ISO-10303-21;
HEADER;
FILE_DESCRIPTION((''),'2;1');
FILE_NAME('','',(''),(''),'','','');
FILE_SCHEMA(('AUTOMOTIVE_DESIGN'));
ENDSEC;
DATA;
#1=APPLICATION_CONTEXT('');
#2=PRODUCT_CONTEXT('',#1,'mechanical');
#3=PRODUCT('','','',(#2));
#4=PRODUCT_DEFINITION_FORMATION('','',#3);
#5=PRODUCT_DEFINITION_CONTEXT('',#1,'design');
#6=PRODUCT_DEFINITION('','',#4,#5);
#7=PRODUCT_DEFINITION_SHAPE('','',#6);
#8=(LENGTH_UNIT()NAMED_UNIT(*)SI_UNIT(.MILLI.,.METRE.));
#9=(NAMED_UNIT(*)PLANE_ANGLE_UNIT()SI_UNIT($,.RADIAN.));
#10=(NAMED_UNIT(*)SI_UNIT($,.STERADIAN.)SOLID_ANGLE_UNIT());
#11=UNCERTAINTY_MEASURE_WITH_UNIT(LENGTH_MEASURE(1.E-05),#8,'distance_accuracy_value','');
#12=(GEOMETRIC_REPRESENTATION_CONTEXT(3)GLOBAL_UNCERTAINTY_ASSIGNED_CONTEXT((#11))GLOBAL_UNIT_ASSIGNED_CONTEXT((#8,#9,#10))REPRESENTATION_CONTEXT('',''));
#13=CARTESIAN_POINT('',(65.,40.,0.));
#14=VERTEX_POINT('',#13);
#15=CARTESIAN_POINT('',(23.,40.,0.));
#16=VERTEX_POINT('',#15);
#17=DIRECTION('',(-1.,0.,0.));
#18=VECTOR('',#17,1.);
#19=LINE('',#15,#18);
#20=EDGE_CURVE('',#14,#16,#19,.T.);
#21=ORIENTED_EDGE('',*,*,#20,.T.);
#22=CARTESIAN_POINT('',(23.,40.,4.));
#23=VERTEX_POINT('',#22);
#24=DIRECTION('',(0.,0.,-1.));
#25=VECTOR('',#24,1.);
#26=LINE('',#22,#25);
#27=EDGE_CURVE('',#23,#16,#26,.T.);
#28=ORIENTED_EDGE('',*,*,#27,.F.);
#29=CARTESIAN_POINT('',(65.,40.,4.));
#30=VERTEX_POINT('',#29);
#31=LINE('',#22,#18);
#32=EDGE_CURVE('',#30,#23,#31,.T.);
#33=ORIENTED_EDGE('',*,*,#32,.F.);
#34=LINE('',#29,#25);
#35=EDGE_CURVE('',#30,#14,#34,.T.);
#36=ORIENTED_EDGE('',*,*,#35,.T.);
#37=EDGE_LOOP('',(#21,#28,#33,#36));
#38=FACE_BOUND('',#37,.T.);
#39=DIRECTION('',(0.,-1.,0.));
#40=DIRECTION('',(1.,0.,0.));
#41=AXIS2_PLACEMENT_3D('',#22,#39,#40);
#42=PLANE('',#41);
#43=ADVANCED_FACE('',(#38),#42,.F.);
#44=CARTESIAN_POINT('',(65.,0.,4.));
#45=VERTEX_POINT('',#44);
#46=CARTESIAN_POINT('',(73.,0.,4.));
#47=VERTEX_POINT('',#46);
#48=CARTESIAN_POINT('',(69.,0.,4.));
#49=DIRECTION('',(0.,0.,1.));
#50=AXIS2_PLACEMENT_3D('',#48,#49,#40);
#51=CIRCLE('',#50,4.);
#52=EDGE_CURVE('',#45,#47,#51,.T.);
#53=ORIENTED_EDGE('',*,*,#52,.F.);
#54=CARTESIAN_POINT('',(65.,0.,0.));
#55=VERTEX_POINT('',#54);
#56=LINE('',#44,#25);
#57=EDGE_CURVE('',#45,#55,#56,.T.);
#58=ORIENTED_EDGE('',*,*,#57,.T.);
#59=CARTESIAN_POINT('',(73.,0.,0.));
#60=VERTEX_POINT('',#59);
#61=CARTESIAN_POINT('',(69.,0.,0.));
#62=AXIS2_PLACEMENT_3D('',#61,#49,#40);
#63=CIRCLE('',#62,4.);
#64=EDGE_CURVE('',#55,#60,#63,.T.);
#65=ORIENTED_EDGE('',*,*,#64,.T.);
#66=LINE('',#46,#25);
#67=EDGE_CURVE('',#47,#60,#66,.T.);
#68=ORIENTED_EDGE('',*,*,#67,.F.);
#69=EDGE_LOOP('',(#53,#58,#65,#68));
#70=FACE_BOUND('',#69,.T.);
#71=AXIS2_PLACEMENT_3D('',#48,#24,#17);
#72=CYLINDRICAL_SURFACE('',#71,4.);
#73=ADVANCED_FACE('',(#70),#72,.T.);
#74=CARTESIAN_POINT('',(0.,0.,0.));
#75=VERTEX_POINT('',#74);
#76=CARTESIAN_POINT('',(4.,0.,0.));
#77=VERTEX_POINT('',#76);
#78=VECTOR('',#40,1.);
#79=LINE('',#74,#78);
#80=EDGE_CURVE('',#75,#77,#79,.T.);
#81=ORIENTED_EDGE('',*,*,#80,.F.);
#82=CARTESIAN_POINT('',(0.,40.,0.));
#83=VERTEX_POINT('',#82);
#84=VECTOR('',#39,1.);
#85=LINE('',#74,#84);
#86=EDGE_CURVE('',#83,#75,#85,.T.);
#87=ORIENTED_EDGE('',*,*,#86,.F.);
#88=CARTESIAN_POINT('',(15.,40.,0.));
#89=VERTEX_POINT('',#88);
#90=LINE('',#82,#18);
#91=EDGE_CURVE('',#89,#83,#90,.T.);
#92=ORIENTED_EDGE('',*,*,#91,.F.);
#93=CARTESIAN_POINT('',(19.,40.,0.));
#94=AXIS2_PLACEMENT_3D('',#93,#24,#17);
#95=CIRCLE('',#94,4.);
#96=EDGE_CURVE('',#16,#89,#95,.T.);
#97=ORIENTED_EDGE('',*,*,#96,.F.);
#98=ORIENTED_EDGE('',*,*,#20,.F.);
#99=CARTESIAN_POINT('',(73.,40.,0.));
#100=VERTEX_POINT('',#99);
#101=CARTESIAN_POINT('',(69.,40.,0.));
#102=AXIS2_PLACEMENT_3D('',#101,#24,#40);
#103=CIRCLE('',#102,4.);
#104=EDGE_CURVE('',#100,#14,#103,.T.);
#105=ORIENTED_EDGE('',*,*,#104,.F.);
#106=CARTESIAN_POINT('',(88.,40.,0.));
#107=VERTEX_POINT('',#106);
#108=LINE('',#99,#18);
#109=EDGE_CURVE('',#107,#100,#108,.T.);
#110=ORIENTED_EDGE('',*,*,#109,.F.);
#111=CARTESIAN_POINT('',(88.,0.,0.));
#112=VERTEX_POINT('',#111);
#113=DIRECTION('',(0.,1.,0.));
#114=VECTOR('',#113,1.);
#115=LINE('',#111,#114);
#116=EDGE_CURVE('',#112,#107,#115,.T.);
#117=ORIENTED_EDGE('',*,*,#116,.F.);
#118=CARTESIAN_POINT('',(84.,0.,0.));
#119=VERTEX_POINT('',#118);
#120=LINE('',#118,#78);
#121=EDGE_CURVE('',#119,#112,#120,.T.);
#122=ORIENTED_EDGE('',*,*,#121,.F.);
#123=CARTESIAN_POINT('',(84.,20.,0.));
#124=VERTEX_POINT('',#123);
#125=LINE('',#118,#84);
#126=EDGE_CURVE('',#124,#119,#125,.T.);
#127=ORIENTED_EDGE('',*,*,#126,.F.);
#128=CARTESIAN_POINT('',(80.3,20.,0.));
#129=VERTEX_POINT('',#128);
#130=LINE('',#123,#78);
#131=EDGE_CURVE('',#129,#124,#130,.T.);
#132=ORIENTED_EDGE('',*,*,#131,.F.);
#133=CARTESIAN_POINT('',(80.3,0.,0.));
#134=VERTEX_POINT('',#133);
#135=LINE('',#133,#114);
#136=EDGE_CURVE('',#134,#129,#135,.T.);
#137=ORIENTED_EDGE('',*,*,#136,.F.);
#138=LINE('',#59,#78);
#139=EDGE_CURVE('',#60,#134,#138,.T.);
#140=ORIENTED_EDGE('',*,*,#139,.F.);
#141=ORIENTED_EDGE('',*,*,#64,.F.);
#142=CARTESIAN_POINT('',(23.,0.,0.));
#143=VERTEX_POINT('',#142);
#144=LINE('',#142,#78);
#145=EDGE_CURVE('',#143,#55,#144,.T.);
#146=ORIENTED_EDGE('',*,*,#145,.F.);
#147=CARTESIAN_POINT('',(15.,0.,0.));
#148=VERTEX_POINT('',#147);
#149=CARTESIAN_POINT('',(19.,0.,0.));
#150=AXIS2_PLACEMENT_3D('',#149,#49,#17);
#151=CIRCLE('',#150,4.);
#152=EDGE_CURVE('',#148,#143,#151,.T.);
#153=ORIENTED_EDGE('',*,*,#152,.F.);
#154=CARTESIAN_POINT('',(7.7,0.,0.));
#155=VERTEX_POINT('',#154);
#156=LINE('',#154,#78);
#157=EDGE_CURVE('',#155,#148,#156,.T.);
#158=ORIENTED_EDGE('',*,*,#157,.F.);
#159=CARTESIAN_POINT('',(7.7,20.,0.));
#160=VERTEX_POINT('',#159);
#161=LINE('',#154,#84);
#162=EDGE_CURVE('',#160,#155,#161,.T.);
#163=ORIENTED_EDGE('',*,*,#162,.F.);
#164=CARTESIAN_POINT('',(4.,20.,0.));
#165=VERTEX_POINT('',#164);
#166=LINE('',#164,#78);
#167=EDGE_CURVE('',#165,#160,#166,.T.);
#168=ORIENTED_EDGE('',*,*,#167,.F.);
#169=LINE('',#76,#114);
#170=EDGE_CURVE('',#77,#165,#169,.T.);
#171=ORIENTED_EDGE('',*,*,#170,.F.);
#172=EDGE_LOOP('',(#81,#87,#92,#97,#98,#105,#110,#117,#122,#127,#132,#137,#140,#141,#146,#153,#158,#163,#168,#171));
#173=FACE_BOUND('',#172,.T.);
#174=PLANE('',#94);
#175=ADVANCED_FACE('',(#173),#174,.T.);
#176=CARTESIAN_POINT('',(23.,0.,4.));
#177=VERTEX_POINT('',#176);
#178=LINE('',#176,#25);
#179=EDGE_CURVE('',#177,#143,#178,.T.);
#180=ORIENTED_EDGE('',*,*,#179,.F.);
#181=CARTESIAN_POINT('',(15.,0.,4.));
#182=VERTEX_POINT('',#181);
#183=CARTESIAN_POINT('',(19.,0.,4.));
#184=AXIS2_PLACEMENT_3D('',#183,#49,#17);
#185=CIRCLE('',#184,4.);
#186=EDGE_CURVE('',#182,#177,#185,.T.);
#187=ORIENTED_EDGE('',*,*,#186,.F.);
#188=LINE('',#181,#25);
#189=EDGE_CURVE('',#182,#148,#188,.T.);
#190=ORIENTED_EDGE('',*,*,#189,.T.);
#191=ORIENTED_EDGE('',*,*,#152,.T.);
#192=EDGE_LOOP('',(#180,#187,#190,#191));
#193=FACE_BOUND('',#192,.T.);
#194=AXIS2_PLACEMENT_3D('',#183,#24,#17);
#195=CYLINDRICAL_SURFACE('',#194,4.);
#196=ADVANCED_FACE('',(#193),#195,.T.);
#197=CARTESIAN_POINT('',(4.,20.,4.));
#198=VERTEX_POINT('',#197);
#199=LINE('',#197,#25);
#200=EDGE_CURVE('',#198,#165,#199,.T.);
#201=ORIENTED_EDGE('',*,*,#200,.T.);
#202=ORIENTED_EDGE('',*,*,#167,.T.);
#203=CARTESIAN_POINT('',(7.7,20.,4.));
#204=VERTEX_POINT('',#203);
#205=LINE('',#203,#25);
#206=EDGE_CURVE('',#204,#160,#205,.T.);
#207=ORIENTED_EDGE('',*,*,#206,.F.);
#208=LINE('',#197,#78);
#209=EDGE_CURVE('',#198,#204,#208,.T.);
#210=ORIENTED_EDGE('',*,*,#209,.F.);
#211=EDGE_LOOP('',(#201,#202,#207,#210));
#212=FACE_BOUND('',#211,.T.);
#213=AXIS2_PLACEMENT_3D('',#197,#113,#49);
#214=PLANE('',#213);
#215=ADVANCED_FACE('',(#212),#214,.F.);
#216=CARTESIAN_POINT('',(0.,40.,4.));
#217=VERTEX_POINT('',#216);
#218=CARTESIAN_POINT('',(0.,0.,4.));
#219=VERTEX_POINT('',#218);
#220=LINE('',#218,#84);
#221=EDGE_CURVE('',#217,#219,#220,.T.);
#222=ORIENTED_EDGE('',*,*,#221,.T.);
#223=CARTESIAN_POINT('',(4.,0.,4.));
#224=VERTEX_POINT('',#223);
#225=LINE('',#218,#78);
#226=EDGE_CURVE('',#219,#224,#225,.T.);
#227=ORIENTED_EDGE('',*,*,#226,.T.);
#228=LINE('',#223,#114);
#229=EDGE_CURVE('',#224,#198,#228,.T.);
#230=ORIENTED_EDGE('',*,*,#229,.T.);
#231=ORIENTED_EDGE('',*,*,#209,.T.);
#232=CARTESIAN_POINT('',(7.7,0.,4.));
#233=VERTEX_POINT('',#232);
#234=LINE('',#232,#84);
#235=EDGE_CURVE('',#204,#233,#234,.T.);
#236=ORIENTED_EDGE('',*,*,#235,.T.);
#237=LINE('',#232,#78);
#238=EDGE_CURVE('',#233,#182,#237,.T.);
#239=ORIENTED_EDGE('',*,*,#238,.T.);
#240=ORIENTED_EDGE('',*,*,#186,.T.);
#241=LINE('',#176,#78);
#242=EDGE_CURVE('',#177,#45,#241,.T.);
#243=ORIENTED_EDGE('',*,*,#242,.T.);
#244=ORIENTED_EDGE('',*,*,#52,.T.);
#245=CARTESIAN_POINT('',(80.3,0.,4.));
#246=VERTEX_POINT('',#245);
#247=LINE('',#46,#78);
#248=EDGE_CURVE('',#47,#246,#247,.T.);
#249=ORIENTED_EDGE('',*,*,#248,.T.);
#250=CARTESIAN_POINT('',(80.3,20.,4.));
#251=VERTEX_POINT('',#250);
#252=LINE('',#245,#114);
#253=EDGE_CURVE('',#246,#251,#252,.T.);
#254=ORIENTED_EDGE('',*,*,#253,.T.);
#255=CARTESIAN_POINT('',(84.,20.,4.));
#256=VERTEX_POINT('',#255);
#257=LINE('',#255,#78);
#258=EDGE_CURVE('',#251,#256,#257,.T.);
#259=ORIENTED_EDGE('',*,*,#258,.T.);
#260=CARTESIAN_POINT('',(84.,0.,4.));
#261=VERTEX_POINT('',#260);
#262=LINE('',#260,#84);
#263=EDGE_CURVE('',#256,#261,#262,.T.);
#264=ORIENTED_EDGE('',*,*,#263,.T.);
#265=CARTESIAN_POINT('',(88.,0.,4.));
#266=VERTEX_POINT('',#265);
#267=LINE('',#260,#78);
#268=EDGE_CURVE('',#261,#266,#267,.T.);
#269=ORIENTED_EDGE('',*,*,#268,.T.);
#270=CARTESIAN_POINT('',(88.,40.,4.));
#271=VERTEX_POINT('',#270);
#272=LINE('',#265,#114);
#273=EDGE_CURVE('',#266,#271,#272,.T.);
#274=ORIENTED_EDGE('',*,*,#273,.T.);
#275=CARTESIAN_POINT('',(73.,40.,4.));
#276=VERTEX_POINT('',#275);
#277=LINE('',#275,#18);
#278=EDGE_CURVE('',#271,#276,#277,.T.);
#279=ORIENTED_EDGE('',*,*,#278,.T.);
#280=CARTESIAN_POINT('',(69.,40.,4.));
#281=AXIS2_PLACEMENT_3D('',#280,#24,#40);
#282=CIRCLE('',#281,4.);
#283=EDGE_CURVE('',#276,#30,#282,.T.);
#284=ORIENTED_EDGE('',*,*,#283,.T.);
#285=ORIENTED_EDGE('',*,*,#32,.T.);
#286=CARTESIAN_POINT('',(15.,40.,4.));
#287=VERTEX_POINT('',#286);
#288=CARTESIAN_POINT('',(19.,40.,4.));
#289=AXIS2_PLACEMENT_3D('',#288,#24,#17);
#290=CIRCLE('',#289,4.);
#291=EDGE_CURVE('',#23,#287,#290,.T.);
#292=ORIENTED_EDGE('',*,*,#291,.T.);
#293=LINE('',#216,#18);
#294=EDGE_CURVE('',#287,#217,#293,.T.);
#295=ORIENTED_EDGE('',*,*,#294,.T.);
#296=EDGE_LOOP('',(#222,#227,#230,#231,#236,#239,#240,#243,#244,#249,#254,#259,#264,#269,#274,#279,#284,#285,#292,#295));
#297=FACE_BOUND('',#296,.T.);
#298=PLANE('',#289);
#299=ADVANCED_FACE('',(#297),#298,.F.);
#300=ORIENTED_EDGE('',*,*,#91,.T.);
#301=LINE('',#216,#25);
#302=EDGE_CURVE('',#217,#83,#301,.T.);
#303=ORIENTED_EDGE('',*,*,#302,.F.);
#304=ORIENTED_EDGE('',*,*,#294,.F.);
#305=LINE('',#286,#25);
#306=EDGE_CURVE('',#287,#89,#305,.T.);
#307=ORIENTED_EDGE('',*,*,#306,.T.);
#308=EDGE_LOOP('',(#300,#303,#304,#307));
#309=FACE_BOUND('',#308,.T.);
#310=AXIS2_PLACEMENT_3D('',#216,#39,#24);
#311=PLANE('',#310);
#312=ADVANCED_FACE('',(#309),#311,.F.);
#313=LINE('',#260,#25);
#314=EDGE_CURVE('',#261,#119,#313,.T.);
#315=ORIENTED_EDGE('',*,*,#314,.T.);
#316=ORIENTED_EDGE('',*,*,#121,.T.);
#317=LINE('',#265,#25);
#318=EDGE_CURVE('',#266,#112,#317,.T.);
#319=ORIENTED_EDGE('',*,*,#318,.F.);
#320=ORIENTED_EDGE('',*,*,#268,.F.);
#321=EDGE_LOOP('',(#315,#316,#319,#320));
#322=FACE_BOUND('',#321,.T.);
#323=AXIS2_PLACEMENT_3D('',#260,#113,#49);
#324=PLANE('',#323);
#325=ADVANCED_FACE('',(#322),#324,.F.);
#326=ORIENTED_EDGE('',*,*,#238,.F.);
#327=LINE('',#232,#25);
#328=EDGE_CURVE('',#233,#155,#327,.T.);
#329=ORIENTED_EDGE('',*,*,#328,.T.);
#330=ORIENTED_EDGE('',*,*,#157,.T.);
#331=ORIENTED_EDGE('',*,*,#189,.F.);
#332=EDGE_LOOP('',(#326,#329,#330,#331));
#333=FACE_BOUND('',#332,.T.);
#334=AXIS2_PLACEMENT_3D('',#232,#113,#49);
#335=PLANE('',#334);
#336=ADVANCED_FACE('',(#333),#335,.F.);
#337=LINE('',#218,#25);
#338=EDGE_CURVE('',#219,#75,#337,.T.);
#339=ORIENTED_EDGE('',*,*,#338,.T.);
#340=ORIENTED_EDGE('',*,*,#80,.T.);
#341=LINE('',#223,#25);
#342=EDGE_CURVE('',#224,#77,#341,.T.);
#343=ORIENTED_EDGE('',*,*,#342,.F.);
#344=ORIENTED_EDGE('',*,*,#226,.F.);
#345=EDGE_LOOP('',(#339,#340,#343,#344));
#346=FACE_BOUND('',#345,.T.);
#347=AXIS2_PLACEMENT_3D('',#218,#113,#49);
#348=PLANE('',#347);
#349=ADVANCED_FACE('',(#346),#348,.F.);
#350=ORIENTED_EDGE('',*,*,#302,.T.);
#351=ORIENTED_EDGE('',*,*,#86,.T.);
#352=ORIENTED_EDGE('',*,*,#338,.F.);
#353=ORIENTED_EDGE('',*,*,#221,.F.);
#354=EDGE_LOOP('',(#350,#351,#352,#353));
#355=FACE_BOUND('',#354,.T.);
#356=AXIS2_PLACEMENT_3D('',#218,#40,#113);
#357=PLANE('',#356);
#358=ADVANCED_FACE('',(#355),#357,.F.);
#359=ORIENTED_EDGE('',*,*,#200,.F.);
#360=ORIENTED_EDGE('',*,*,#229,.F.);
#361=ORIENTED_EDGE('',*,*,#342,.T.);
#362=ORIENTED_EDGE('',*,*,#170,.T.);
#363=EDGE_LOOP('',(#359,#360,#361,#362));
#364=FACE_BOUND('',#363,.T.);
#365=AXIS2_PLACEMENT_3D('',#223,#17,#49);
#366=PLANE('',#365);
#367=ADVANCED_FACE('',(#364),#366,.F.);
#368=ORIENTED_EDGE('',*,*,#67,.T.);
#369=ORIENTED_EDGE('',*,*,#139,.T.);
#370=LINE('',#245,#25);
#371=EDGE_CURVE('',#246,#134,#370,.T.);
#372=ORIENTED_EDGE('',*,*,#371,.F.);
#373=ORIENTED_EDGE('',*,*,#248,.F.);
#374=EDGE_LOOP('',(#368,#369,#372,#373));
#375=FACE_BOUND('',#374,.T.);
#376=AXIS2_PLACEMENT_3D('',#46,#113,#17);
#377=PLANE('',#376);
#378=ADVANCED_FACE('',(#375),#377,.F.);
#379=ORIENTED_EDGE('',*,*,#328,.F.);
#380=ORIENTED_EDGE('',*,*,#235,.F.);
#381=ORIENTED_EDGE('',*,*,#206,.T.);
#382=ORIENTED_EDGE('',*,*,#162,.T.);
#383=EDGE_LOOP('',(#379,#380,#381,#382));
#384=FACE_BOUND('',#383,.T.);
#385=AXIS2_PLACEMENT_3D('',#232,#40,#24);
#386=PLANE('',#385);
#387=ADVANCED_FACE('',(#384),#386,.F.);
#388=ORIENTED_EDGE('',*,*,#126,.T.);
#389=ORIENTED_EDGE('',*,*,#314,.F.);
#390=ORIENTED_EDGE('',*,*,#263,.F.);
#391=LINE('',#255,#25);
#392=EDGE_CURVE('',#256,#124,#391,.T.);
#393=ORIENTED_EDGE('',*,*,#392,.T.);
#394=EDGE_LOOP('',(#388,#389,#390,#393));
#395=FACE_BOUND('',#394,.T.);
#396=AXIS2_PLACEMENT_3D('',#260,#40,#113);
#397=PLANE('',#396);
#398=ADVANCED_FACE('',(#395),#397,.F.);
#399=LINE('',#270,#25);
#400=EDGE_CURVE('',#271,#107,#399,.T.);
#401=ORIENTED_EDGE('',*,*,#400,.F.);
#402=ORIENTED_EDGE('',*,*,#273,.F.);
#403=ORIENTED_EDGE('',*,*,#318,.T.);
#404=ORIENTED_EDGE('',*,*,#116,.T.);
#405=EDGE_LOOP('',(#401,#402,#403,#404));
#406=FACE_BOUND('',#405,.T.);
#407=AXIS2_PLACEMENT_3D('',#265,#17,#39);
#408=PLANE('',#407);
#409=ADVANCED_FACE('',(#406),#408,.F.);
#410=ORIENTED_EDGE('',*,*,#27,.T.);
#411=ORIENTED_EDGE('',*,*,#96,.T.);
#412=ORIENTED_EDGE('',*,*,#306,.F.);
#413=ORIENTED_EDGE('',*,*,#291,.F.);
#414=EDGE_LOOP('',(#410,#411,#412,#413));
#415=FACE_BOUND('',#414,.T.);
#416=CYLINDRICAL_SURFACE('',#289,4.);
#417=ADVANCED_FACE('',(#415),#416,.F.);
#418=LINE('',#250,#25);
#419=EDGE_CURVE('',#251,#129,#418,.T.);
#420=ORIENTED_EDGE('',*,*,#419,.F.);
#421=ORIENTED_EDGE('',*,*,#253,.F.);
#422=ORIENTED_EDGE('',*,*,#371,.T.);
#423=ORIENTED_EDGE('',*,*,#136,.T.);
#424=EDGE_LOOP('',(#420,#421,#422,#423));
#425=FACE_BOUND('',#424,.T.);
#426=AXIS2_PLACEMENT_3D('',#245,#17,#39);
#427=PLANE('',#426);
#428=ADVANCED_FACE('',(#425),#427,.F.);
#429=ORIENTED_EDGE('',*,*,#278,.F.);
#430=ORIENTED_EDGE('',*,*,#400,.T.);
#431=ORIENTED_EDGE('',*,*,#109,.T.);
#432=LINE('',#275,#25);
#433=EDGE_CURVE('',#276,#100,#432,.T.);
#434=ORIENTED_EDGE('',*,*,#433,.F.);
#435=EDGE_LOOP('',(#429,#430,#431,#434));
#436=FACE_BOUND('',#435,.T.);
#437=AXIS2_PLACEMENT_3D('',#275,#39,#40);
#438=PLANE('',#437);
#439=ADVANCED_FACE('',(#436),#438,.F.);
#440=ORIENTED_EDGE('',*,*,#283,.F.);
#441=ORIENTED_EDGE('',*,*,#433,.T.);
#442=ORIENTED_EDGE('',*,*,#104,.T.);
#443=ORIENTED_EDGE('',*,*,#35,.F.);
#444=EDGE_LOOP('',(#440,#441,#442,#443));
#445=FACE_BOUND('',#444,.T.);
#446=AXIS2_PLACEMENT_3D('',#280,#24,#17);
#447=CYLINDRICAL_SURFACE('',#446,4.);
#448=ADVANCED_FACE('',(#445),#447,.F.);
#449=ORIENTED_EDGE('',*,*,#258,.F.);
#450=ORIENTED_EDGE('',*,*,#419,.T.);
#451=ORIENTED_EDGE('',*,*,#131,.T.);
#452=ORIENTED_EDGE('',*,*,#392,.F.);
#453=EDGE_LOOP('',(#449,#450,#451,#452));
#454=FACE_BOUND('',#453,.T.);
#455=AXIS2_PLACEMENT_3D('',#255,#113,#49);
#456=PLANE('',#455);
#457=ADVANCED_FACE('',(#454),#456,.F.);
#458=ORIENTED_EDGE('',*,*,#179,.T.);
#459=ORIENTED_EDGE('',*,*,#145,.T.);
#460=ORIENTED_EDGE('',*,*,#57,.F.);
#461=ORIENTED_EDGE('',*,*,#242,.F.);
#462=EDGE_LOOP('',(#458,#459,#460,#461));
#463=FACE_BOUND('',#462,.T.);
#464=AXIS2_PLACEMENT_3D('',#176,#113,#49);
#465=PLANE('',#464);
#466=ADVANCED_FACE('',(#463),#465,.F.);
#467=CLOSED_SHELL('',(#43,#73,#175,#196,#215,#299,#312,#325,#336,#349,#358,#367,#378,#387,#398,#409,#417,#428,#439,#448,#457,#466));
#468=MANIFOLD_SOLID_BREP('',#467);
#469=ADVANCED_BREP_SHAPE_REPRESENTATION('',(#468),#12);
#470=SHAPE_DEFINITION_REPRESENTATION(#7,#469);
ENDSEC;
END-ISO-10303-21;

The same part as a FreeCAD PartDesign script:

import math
import FreeCAD as App
import Part
import Sketcher

V = App.Vector

doc = App.newDocument("Part")
body = doc.addObject("PartDesign::Body", "Body")

# Sketch on XY plane
sketch1 = doc.addObject("Sketcher::SketchObject", "Sketch")
body.addObject(sketch1)
sketch1.AttachmentSupport = (doc.XY_Plane, [""])
sketch1.MapMode = "FlatFace"
sketch1.addGeometry([
    Part.LineSegment(V(7.7, 0, 0), V(15, 0, 0)),  # 0
    Part.ArcOfCircle(Part.Circle(V(19, 0, 0), V(0, 0, 1), 4), math.radians(180), math.radians(360)),  # 1
    Part.LineSegment(V(23, 0, 0), V(65, 0, 0)),  # 2
    Part.ArcOfCircle(Part.Circle(V(69, 0, 0), V(0, 0, 1), 4), math.radians(180), math.radians(360)),  # 3
    Part.LineSegment(V(73, 0, 0), V(80.3, 0, 0)),  # 4
    Part.LineSegment(V(80.3, 0, 0), V(80.3, 20, 0)),  # 5
    Part.LineSegment(V(80.3, 20, 0), V(84, 20, 0)),  # 6
    Part.LineSegment(V(84, 20, 0), V(84, 0, 0)),  # 7
    Part.LineSegment(V(84, 0, 0), V(88, 0, 0)),  # 8
    Part.LineSegment(V(88, 0, 0), V(88, 40, 0)),  # 9
    Part.LineSegment(V(88, 40, 0), V(73, 40, 0)),  # 10
    Part.ArcOfCircle(Part.Circle(V(69, 40, 0), V(0, 0, 1), 4), math.radians(180), math.radians(360)),  # 11
    Part.LineSegment(V(65, 40, 0), V(23, 40, 0)),  # 12
    Part.ArcOfCircle(Part.Circle(V(19, 40, 0), V(0, 0, 1), 4), math.radians(180), math.radians(360)),  # 13
    Part.LineSegment(V(15, 40, 0), V(0, 40, 0)),  # 14
    Part.LineSegment(V(0, 40, 0), V(0, 0, 0)),  # 15
    Part.LineSegment(V(0, 0, 0), V(4, 0, 0)),  # 16
    Part.LineSegment(V(4, 0, 0), V(4, 20, 0)),  # 17
    Part.LineSegment(V(4, 20, 0), V(7.7, 20, 0)),  # 18
    Part.LineSegment(V(7.7, 20, 0), V(7.7, 0, 0)),  # 19
], False)
sketch1.addConstraint([
    Sketcher.Constraint("Coincident", 0, 2, 1, 1),
    Sketcher.Constraint("Coincident", 1, 2, 2, 1),
    Sketcher.Constraint("Coincident", 2, 2, 3, 1),
    Sketcher.Constraint("Coincident", 3, 2, 4, 1),
    Sketcher.Constraint("Coincident", 4, 2, 5, 1),
    Sketcher.Constraint("Coincident", 5, 2, 6, 1),
    Sketcher.Constraint("Coincident", 6, 2, 7, 1),
    Sketcher.Constraint("Coincident", 7, 2, 8, 1),
    Sketcher.Constraint("Coincident", 8, 2, 9, 1),
    Sketcher.Constraint("Coincident", 9, 2, 10, 1),
    Sketcher.Constraint("Coincident", 10, 2, 11, 2),
    Sketcher.Constraint("Coincident", 11, 1, 12, 1),
    Sketcher.Constraint("Coincident", 12, 2, 13, 2),
    Sketcher.Constraint("Coincident", 13, 1, 14, 1),
    Sketcher.Constraint("Coincident", 14, 2, 15, 1),
    Sketcher.Constraint("Coincident", 15, 2, 16, 1),
    Sketcher.Constraint("Coincident", 16, 2, 17, 1),
    Sketcher.Constraint("Coincident", 17, 2, 18, 1),
    Sketcher.Constraint("Coincident", 18, 2, 19, 1),
    Sketcher.Constraint("Coincident", 19, 2, 0, 1),
    Sketcher.Constraint("Horizontal", 0),
    Sketcher.Constraint("Horizontal", 2),
    Sketcher.Constraint("Horizontal", 4),
    Sketcher.Constraint("Vertical", 5),
    Sketcher.Constraint("Horizontal", 6),
    Sketcher.Constraint("Vertical", 7),
    Sketcher.Constraint("Horizontal", 8),
    Sketcher.Constraint("Vertical", 9),
    Sketcher.Constraint("Horizontal", 10),
    Sketcher.Constraint("Horizontal", 12),
    Sketcher.Constraint("Horizontal", 14),
    Sketcher.Constraint("Vertical", 15),
    Sketcher.Constraint("Horizontal", 16),
    Sketcher.Constraint("Vertical", 17),
    Sketcher.Constraint("Horizontal", 18),
    Sketcher.Constraint("Vertical", 19),
    Sketcher.Constraint("Coincident", 15, 2, -1, 1),
    Sketcher.Constraint("Equal", 1, 3),
    Sketcher.Constraint("Equal", 3, 11),
    Sketcher.Constraint("Equal", 11, 13),
    Sketcher.Constraint("PointOnObject", 1, 3, -1),
    Sketcher.Constraint("PointOnObject", 3, 3, -1),
    Sketcher.Constraint("PointOnObject", 0, 2, -1),
    Sketcher.Constraint("PointOnObject", 1, 2, -1),
    Sketcher.Constraint("PointOnObject", 3, 2, -1),
    Sketcher.Constraint("PointOnObject", 7, 2, -1),
    Sketcher.Constraint("Horizontal", 11, 3, 13, 3),
    Sketcher.Constraint("Horizontal", 13, 3, 9, 2),
    Sketcher.Constraint("Horizontal", 10, 2, 11, 1),
    Sketcher.Constraint("Horizontal", 12, 2, 13, 1),
    Sketcher.Constraint("Horizontal", 6, 2, 17, 2),
    Sketcher.Constraint("Vertical", 3, 3, 11, 3),
    Sketcher.Constraint("Vertical", 1, 3, 13, 3),
    Sketcher.Constraint("Equal", 0, 4),
    Sketcher.Constraint("Equal", 10, 14),
    Sketcher.Constraint("Equal", 8, 16),
    Sketcher.Constraint("Radius", 1, 4.0),
    Sketcher.Constraint("DistanceX", 2, 1, 2, 2, 42.0),
    Sketcher.Constraint("DistanceX", 8, 1, 8, 2, 4.0),
    Sketcher.Constraint("DistanceX", 10, 2, 10, 1, 15.0),
    Sketcher.Constraint("DistanceY", 5, 1, 5, 2, 20.0),
    Sketcher.Constraint("DistanceY", 9, 1, 9, 2, 40.0),
    Sketcher.Constraint("DistanceX", 0, 1, 0, 2, 7.3),
])
pad1 = doc.addObject("PartDesign::Pad", "Pad")
body.addObject(pad1)
pad1.Profile = sketch1
pad1.Length = 4

doc.recompute()
